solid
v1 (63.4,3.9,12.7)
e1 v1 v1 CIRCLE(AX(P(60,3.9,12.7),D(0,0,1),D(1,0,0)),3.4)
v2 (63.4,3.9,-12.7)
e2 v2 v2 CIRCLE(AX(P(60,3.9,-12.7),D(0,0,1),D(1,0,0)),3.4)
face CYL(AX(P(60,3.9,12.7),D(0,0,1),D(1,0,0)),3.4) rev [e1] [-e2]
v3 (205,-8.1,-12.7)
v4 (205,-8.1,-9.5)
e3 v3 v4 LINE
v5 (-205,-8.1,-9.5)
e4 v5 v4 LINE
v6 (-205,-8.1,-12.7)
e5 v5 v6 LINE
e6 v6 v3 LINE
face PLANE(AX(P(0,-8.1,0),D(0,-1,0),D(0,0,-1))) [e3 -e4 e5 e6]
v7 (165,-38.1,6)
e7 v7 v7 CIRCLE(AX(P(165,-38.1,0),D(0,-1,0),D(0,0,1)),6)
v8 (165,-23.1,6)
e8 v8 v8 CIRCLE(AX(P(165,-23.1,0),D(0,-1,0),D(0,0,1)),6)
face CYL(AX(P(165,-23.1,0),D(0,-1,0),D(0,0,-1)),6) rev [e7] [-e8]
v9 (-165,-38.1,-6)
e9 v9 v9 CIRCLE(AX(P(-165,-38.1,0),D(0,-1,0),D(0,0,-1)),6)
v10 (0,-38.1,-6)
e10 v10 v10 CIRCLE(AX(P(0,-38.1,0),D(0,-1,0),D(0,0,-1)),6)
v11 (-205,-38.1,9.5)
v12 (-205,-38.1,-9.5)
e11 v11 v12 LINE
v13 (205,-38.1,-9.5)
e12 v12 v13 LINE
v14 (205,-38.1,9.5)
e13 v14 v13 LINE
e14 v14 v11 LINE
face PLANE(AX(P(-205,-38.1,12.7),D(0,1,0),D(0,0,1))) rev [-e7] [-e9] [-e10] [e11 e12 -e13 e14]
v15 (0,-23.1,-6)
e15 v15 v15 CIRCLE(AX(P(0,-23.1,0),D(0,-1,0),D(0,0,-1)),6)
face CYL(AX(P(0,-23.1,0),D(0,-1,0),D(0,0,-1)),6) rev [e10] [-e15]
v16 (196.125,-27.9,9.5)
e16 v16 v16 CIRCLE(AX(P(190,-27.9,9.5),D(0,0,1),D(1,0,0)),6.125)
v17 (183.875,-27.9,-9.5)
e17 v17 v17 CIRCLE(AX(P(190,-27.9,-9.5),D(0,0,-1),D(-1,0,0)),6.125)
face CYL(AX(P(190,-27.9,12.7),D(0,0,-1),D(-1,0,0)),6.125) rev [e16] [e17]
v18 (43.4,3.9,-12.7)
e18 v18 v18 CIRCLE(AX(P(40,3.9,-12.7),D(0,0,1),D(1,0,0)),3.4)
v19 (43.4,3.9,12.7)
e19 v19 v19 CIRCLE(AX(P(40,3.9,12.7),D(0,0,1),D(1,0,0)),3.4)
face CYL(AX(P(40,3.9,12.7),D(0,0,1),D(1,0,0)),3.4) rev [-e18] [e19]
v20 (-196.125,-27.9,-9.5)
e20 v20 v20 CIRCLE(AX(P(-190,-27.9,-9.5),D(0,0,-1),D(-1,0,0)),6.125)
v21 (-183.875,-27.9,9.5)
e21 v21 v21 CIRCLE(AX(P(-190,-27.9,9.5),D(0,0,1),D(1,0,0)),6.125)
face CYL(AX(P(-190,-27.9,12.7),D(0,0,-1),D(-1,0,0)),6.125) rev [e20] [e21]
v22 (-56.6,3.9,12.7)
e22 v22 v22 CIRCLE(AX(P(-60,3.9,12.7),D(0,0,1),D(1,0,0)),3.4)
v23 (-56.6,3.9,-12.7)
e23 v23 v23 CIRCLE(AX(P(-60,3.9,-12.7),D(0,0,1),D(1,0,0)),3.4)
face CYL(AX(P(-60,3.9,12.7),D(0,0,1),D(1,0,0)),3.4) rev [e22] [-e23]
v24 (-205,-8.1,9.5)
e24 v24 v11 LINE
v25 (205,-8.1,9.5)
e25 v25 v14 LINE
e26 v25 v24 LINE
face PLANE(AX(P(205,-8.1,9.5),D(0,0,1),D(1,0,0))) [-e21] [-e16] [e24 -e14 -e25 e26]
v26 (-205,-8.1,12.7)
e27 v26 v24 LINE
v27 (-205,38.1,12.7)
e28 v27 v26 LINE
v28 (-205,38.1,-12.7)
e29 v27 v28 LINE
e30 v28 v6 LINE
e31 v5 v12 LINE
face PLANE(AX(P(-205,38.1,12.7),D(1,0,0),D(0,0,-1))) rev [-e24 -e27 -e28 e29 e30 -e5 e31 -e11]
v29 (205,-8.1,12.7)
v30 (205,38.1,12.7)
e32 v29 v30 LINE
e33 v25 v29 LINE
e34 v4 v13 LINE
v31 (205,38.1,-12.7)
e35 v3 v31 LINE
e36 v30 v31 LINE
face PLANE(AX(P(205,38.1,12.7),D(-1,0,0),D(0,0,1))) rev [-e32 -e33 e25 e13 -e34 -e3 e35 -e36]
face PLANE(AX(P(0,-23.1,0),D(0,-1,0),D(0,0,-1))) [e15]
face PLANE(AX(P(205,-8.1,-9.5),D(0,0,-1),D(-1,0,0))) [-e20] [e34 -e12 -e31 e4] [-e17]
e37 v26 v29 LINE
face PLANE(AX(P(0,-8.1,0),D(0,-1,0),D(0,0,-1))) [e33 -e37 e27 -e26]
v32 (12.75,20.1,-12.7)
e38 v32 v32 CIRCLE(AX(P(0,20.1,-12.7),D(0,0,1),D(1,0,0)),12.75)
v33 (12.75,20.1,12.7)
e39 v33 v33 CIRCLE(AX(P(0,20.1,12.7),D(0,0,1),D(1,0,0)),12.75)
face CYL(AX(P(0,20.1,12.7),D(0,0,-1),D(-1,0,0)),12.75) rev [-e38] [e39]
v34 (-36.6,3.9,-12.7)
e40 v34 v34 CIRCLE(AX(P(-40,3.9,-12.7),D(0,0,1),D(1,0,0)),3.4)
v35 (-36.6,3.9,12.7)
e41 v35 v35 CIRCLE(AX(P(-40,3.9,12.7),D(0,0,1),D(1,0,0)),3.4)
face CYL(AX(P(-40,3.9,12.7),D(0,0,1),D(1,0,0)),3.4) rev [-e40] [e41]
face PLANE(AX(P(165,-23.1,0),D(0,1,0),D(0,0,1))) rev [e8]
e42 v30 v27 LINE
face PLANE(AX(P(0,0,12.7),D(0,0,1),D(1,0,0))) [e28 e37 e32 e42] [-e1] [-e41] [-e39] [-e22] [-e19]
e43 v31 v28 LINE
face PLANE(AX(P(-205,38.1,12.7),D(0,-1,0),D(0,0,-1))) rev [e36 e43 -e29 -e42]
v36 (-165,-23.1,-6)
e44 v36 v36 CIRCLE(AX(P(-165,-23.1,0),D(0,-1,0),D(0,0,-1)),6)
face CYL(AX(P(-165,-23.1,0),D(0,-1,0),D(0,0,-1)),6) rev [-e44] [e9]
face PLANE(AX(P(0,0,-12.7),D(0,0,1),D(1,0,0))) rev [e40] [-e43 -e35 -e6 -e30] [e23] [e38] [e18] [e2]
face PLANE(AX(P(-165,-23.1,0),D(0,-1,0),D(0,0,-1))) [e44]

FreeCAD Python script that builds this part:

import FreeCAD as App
import Part
import Sketcher
from FreeCAD import Vector

doc = App.newDocument("Part")
body = doc.addObject("PartDesign::Body", "Body")

# Sketch on XY plane
sketch1 = doc.addObject("Sketcher::SketchObject", "Sketch")
body.addObject(sketch1)
sketch1.AttachmentSupport = (doc.XY_Plane, [""])
sketch1.MapMode = "FlatFace"
sketch1.addGeometry(Part.LineSegment(Vector(-205, 38, 0), Vector(-205, -38, 0)), False)
sketch1.addGeometry(Part.LineSegment(Vector(-205, -38, 0), Vector(205, -38, 0)), False)
sketch1.addGeometry(Part.LineSegment(Vector(205, -38, 0), Vector(205, 38, 0)), False)
sketch1.addGeometry(Part.LineSegment(Vector(205, 38, 0), Vector(-205, 38, 0)), False)
sketch1.addGeometry(Part.Circle(Vector(-190, -28, 0), Vector(0, 0, 1), 6), False)
sketch1.addGeometry(Part.Circle(Vector(190, -28, 0), Vector(0, 0, 1), 6), False)
sketch1.addGeometry(Part.Circle(Vector(0, 20, 0), Vector(0, 0, 1), 13), False)
sketch1.addConstraint(Sketcher.Constraint("Coincident", 0, 2, 1, 1))
sketch1.addConstraint(Sketcher.Constraint("Coincident", 1, 2, 2, 1))
sketch1.addConstraint(Sketcher.Constraint("Coincident", 2, 2, 3, 1))
sketch1.addConstraint(Sketcher.Constraint("Coincident", 3, 2, 0, 1))
sketch1.addConstraint(Sketcher.Constraint("Vertical", 0))
sketch1.addConstraint(Sketcher.Constraint("Horizontal", 1))
sketch1.addConstraint(Sketcher.Constraint("Vertical", 2))
sketch1.addConstraint(Sketcher.Constraint("Horizontal", 3))
sketch1.addConstraint(Sketcher.Constraint("Equal", 4, 5))
sketch1.addConstraint(Sketcher.Constraint("Symmetric", 0, 2, 2, 2, -1, 1))
sketch1.addConstraint(Sketcher.Constraint("Symmetric", 4, 3, 5, 3, -2))
sketch1.addConstraint(Sketcher.Constraint("PointOnObject", 6, 3, -2))
sketch1.addConstraint(Sketcher.Constraint("Diameter", 6, 25.5))
sketch1.addConstraint(Sketcher.Constraint("Diameter", 4, 12.25))
sketch1.addConstraint(Sketcher.Constraint("DistanceX", 1, 1, 1, 2, 410.0))
sketch1.addConstraint(Sketcher.Constraint("DistanceY", 0, 2, 0, 1, 76.2))
sketch1.addConstraint(Sketcher.Constraint("DistanceX", 4, 3, -1, 1, 190.0))
sketch1.addConstraint(Sketcher.Constraint("DistanceY", 4, 3, 6, 3, 48.0))
sketch1.addConstraint(Sketcher.Constraint("DistanceY", 5, 3, 2, 2, 66.0))
pad1 = doc.addObject("PartDesign::Pad", "Pad")
body.addObject(pad1)
pad1.Profile = sketch1
pad1.Length = 25.4
pad1.Midplane = True

# Sketch on XZ plane
sketch2 = doc.addObject("Sketcher::SketchObject", "Sketch001")
body.addObject(sketch2)
sketch2.AttachmentSupport = (doc.XZ_Plane, [""])
sketch2.MapMode = "FlatFace"
sketch2.AttachmentOffset = App.Placement(Vector(0, 0, 38.1), App.Rotation())
sketch2.addGeometry(Part.Circle(Vector(0, 0, 0), Vector(0, 0, 1), 6), False)
sketch2.addGeometry(Part.Circle(Vector(-165, 0, 0), Vector(0, 0, 1), 6), False)
sketch2.addGeometry(Part.Circle(Vector(165, 0, 0), Vector(0, 0, 1), 6), False)
sketch2.addConstraint(Sketcher.Constraint("Coincident", 0, 3, -1, 1))
sketch2.addConstraint(Sketcher.Constraint("Equal", 0, 1))
sketch2.addConstraint(Sketcher.Constraint("Equal", 1, 2))
sketch2.addConstraint(Sketcher.Constraint("Symmetric", 1, 3, 2, 3, -1, 1))
sketch2.addConstraint(Sketcher.Constraint("PointOnObject", 1, 3, -1))
sketch2.addConstraint(Sketcher.Constraint("Diameter", 0, 12.0))
sketch2.addConstraint(Sketcher.Constraint("DistanceX", 1, 3, -1, 1, 165.0))
pocket1 = doc.addObject("PartDesign::Pocket", "Pocket")
body.addObject(pocket1)
pocket1.Profile = sketch2
pocket1.Length = 15

# Sketch on XZ plane
sketch3 = doc.addObject("Sketcher::SketchObject", "Sketch002")
body.addObject(sketch3)
sketch3.AttachmentSupport = (doc.XZ_Plane, [""])
sketch3.MapMode = "FlatFace"
sketch3.AttachmentOffset = App.Placement(Vector(0, 0, 38.1), App.Rotation())
sketch3.addGeometry(Part.LineSegment(Vector(-248, 55, 0), Vector(-248, -55, 0)), False)
sketch3.addGeometry(Part.LineSegment(Vector(-248, -55, 0), Vector(248, -55, 0)), False)
sketch3.addGeometry(Part.LineSegment(Vector(248, -55, 0), Vector(248, 55, 0)), False)
sketch3.addGeometry(Part.LineSegment(Vector(248, 55, 0), Vector(-248, 55, 0)), False)
sketch3.addGeometry(Part.LineSegment(Vector(205, -10, 0), Vector(-205, -10, 0)), False)
sketch3.addGeometry(Part.LineSegment(Vector(-205, -10, 0), Vector(-205, 10, 0)), False)
sketch3.addGeometry(Part.LineSegment(Vector(-205, 10, 0), Vector(205, 10, 0)), False)
sketch3.addGeometry(Part.LineSegment(Vector(205, 10, 0), Vector(205, -10, 0)), False)
sketch3.addConstraint(Sketcher.Constraint("Coincident", 0, 2, 1, 1))
sketch3.addConstraint(Sketcher.Constraint("Coincident", 1, 2, 2, 1))
sketch3.addConstraint(Sketcher.Constraint("Coincident", 2, 2, 3, 1))
sketch3.addConstraint(Sketcher.Constraint("Coincident", 3, 2, 0, 1))
sketch3.addConstraint(Sketcher.Constraint("Coincident", 4, 2, 5, 1))
sketch3.addConstraint(Sketcher.Constraint("Coincident", 5, 2, 6, 1))
sketch3.addConstraint(Sketcher.Constraint("Coincident", 6, 2, 7, 1))
sketch3.addConstraint(Sketcher.Constraint("Coincident", 7, 2, 4, 1))
sketch3.addConstraint(Sketcher.Constraint("Vertical", 0))
sketch3.addConstraint(Sketcher.Constraint("Horizontal", 1))
sketch3.addConstraint(Sketcher.Constraint("Vertical", 2))
sketch3.addConstraint(Sketcher.Constraint("Horizontal", 3))
sketch3.addConstraint(Sketcher.Constraint("Horizontal", 4))
sketch3.addConstraint(Sketcher.Constraint("Vertical", 5))
sketch3.addConstraint(Sketcher.Constraint("Horizontal", 6))
sketch3.addConstraint(Sketcher.Constraint("Vertical", 7))
sketch3.addConstraint(Sketcher.Constraint("Symmetric", 0, 2, 2, 2, -1, 1))
sketch3.addConstraint(Sketcher.Constraint("Symmetric", 4, 2, 6, 2, -1, 1))
sketch3.addConstraint(Sketcher.Constraint("DistanceX", 4, 2, 4, 1, 410.0))
sketch3.addConstraint(Sketcher.Constraint("DistanceY", 5, 1, 5, 2, 19.0))
sketch3.addConstraint(Sketcher.Constraint("DistanceX", 1, 1, 1, 2, 495.558))
sketch3.addConstraint(Sketcher.Constraint("DistanceY", 0, 2, 0, 1, 110.958))
pocket2 = doc.addObject("PartDesign::Pocket", "Pocket001")
body.addObject(pocket2)
pocket2.Profile = sketch3
pocket2.Length = 30

# Sketch on XY plane
sketch4 = doc.addObject("Sketcher::SketchObject", "Sketch003")
body.addObject(sketch4)
sketch4.AttachmentSupport = (doc.XY_Plane, [""])
sketch4.MapMode = "FlatFace"
sketch4.AttachmentOffset = App.Placement(Vector(0, 0, 12.7), App.Rotation())
sketch4.addGeometry(Part.Circle(Vector(-60, 3.9, 0), Vector(0, 0, 1), 3.4), False)
sketch4.addGeometry(Part.Circle(Vector(-40, 3.9, 0), Vector(0, 0, 1), 3.4), False)
sketch4.addGeometry(Part.Circle(Vector(40, 3.9, 0), Vector(0, 0, 1), 3.4), False)
sketch4.addGeometry(Part.Circle(Vector(60, 3.9, 0), Vector(0, 0, 1), 3.4), False)
sketch4.addConstraint(Sketcher.Constraint("Equal", 0, 1))
sketch4.addConstraint(Sketcher.Constraint("Equal", 1, 2))
sketch4.addConstraint(Sketcher.Constraint("Equal", 2, 3))
sketch4.addConstraint(Sketcher.Constraint("Symmetric", 1, 3, 2, 3, -2))
sketch4.addConstraint(Sketcher.Constraint("Symmetric", 0, 3, 3, 3, -2))
sketch4.addConstraint(Sketcher.Constraint("Horizontal", 0, 3, 1, 3))
sketch4.addConstraint(Sketcher.Constraint("Diameter", 0, 6.8))
sketch4.addConstraint(Sketcher.Constraint("DistanceX", 0, 3, -1, 1, 60.0))
sketch4.addConstraint(Sketcher.Constraint("DistanceX", 1, 3, -1, 1, 40.0))
sketch4.addConstraint(Sketcher.Constraint("DistanceY", -1, 1, 0, 3, 3.9))
doc.recompute()
hole = doc.addObject("PartDesign::Hole", "Hole")
body.addObject(hole)
hole.Profile = sketch4
hole.ThreadType = "None"
hole.Diameter = 6.8
hole.DepthType = "ThroughAll"

doc.recompute()
